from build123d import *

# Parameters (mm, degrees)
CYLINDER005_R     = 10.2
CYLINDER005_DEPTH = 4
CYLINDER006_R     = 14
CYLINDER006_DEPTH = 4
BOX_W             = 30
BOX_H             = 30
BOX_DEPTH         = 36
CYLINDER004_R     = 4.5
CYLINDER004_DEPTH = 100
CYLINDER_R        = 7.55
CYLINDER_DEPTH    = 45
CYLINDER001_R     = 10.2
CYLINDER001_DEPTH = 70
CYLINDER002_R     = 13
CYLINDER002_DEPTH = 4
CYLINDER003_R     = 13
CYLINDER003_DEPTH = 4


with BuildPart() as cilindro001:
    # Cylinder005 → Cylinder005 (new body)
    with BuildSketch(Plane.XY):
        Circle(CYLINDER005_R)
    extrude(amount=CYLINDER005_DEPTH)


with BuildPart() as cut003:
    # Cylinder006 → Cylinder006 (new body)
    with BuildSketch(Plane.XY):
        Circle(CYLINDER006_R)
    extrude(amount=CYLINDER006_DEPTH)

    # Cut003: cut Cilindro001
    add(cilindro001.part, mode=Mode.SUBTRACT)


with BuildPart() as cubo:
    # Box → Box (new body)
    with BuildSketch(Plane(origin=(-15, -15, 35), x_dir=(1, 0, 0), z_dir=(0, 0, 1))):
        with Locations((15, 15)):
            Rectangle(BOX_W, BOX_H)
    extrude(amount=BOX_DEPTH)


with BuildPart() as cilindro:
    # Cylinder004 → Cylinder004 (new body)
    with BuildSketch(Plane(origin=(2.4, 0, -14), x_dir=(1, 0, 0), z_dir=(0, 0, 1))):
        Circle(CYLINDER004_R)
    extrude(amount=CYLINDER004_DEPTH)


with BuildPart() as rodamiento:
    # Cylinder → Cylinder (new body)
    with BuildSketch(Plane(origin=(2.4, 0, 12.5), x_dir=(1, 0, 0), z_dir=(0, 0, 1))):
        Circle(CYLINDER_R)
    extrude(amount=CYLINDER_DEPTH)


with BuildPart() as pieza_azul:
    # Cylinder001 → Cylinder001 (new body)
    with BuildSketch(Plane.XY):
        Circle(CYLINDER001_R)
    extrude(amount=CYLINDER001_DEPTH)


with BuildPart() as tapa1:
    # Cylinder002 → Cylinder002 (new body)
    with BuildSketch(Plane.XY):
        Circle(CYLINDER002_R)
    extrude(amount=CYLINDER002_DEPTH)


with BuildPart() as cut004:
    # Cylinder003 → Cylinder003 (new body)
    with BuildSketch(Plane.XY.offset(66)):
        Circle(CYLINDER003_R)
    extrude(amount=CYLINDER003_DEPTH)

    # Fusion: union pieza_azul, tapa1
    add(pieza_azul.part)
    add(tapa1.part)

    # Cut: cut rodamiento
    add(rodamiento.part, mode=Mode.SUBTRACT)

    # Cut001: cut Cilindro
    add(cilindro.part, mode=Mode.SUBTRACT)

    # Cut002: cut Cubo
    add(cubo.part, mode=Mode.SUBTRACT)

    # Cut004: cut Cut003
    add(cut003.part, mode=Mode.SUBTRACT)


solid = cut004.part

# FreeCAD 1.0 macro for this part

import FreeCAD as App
import Part
import Sketcher
from FreeCAD import Vector
Q = App.Units.Quantity

doc = App.newDocument("Part")
body = doc.addObject("PartDesign::Body", "Body")

sketch1 = body.newObject("Sketcher::SketchObject", "Sketch")
sketch1.AttachmentSupport = (doc.getObject("XY_Plane"), [""])
sketch1.MapMode = "FlatFace"
sketch1.addGeometry(Part.Circle(Vector(0, 0, 0), Vector(0, 0, 1), 10.2), False)
sketch1.addConstraint([
    Sketcher.Constraint("Coincident", 0, 3, -1, 1),
    Sketcher.Constraint("Diameter", 0, Q("20.4 mm")),
])
pad1 = body.newObject("PartDesign::Pad", "Pad")
pad1.Profile = sketch1
pad1.Length = 4
body2 = doc.addObject("PartDesign::Body", "Body001")

sketch2 = body2.newObject("Sketcher::SketchObject", "Sketch001")
sketch2.AttachmentSupport = (doc.getObject("XY_Plane001"), [""])
sketch2.MapMode = "FlatFace"
sketch2.addGeometry(Part.Circle(Vector(0, 0, 0), Vector(0, 0, 1), 14), False)
sketch2.addConstraint([
    Sketcher.Constraint("Coincident", 0, 3, -1, 1),
    Sketcher.Constraint("Diameter", 0, Q("28 mm")),
])
pad2 = body2.newObject("PartDesign::Pad", "Pad001")
pad2.Profile = sketch2
pad2.Length = 4
doc.recompute()

boolean = body2.newObject("PartDesign::Boolean", "Boolean")
boolean.Type = "Cut"
boolean.addObjects([body])
body3 = doc.addObject("PartDesign::Body", "Body002")

sketch3 = body3.newObject("Sketcher::SketchObject", "Sketch002")
sketch3.AttachmentSupport = (doc.getObject("XY_Plane002"), [""])
sketch3.MapMode = "FlatFace"
sketch3.AttachmentOffset = App.Placement(Vector(0, 0, 35), App.Rotation())
sketch3.addGeometry([
    Part.LineSegment(Vector(-15, 15, 0), Vector(-15, -15, 0)),
    Part.LineSegment(Vector(-15, -15, 0), Vector(15, -15, 0)),
    Part.LineSegment(Vector(15, -15, 0), Vector(15, 15, 0)),
    Part.LineSegment(Vector(15, 15, 0), Vector(-15, 15, 0)),
], False)
sketch3.addConstraint([
    Sketcher.Constraint("Coincident", 0, 2, 1, 1),
    Sketcher.Constraint("Coincident", 1, 2, 2, 1),
    Sketcher.Constraint("Coincident", 2, 2, 3, 1),
    Sketcher.Constraint("Coincident", 3, 2, 0, 1),
    Sketcher.Constraint("Vertical", 0),
    Sketcher.Constraint("Horizontal", 1),
    Sketcher.Constraint("Vertical", 2),
    Sketcher.Constraint("Horizontal", 3),
    Sketcher.Constraint("Symmetric", 0, 2, 2, 2, -1, 1),
    Sketcher.Constraint("Equal", 3, 0),
    Sketcher.Constraint("DistanceX", 1, 1, 1, 2, Q("30 mm")),
])
pad3 = body3.newObject("PartDesign::Pad", "Pad002")
pad3.Profile = sketch3
pad3.Length = 36
body4 = doc.addObject("PartDesign::Body", "Body003")

sketch4 = body4.newObject("Sketcher::SketchObject", "Sketch003")
sketch4.AttachmentSupport = (doc.getObject("XY_Plane003"), [""])
sketch4.MapMode = "FlatFace"
sketch4.AttachmentOffset = App.Placement(Vector(0, 0, -14), App.Rotation())
sketch4.addGeometry(Part.Circle(Vector(2.4, 0, 0), Vector(0, 0, 1), 4.5), False)
sketch4.addConstraint([
    Sketcher.Constraint("PointOnObject", 0, 3, -1),
    Sketcher.Constraint("Diameter", 0, Q("9 mm")),
    Sketcher.Constraint("DistanceX", -1, 1, 0, 3, Q("2.4 mm")),
])
pad4 = body4.newObject("PartDesign::Pad", "Pad003")
pad4.Profile = sketch4
pad4.Length = 100
body5 = doc.addObject("PartDesign::Body", "Body004")

sketch5 = body5.newObject("Sketcher::SketchObject", "Sketch004")
sketch5.AttachmentSupport = (doc.getObject("XY_Plane004"), [""])
sketch5.MapMode = "FlatFace"
sketch5.AttachmentOffset = App.Placement(Vector(0, 0, 12.5), App.Rotation())
sketch5.addGeometry(Part.Circle(Vector(2.4, 0, 0), Vector(0, 0, 1), 7.55), False)
sketch5.addConstraint([
    Sketcher.Constraint("PointOnObject", 0, 3, -1),
    Sketcher.Constraint("Diameter", 0, Q("15.1 mm")),
    Sketcher.Constraint("DistanceX", -1, 1, 0, 3, Q("2.4 mm")),
])
pad5 = body5.newObject("PartDesign::Pad", "Pad004")
pad5.Profile = sketch5
pad5.Length = 45
body6 = doc.addObject("PartDesign::Body", "Body005")

sketch6 = body6.newObject("Sketcher::SketchObject", "Sketch005")
sketch6.AttachmentSupport = (doc.getObject("XY_Plane005"), [""])
sketch6.MapMode = "FlatFace"
sketch6.addGeometry(Part.Circle(Vector(0, 0, 0), Vector(0, 0, 1), 10.2), False)
sketch6.addConstraint([
    Sketcher.Constraint("Coincident", 0, 3, -1, 1),
    Sketcher.Constraint("Diameter", 0, Q("20.4 mm")),
])
pad6 = body6.newObject("PartDesign::Pad", "Pad005")
pad6.Profile = sketch6
pad6.Length = 70
body7 = doc.addObject("PartDesign::Body", "Body006")

sketch7 = body7.newObject("Sketcher::SketchObject", "Sketch006")
sketch7.AttachmentSupport = (doc.getObject("XY_Plane006"), [""])
sketch7.MapMode = "FlatFace"
sketch7.addGeometry(Part.Circle(Vector(0, 0, 0), Vector(0, 0, 1), 13), False)
sketch7.addConstraint([
    Sketcher.Constraint("Coincident", 0, 3, -1, 1),
    Sketcher.Constraint("Diameter", 0, Q("26 mm")),
])
pad7 = body7.newObject("PartDesign::Pad", "Pad006")
pad7.Profile = sketch7
pad7.Length = 4
body8 = doc.addObject("PartDesign::Body", "Body007")

sketch8 = body8.newObject("Sketcher::SketchObject", "Sketch007")
sketch8.AttachmentSupport = (doc.getObject("XY_Plane007"), [""])
sketch8.MapMode = "FlatFace"
sketch8.AttachmentOffset = App.Placement(Vector(0, 0, 66), App.Rotation())
sketch8.addGeometry(Part.Circle(Vector(0, 0, 0), Vector(0, 0, 1), 13), False)
sketch8.addConstraint([
    Sketcher.Constraint("Coincident", 0, 3, -1, 1),
    Sketcher.Constraint("Diameter", 0, Q("26 mm")),
])
pad8 = body8.newObject("PartDesign::Pad", "Pad007")
pad8.Profile = sketch8
pad8.Length = 4
doc.recompute()

boolean2 = body8.newObject("PartDesign::Boolean", "Boolean001")
boolean2.Type = "Fuse"
boolean2.addObjects([body6])
doc.recompute()

boolean3 = body8.newObject("PartDesign::Boolean", "Boolean002")
boolean3.Type = "Fuse"
boolean3.addObjects([body7])
doc.recompute()

boolean4 = body8.newObject("PartDesign::Boolean", "Boolean003")
boolean4.Type = "Cut"
boolean4.addObjects([body5])
doc.recompute()

boolean5 = body8.newObject("PartDesign::Boolean", "Boolean004")
boolean5.Type = "Cut"
boolean5.addObjects([body4])
doc.recompute()

boolean6 = body8.newObject("PartDesign::Boolean", "Boolean005")
boolean6.Type = "Cut"
boolean6.addObjects([body3])
doc.recompute()

boolean7 = body8.newObject("PartDesign::Boolean", "Boolean006")
boolean7.Type = "Cut"
boolean7.addObjects([body2])

doc.recompute()
